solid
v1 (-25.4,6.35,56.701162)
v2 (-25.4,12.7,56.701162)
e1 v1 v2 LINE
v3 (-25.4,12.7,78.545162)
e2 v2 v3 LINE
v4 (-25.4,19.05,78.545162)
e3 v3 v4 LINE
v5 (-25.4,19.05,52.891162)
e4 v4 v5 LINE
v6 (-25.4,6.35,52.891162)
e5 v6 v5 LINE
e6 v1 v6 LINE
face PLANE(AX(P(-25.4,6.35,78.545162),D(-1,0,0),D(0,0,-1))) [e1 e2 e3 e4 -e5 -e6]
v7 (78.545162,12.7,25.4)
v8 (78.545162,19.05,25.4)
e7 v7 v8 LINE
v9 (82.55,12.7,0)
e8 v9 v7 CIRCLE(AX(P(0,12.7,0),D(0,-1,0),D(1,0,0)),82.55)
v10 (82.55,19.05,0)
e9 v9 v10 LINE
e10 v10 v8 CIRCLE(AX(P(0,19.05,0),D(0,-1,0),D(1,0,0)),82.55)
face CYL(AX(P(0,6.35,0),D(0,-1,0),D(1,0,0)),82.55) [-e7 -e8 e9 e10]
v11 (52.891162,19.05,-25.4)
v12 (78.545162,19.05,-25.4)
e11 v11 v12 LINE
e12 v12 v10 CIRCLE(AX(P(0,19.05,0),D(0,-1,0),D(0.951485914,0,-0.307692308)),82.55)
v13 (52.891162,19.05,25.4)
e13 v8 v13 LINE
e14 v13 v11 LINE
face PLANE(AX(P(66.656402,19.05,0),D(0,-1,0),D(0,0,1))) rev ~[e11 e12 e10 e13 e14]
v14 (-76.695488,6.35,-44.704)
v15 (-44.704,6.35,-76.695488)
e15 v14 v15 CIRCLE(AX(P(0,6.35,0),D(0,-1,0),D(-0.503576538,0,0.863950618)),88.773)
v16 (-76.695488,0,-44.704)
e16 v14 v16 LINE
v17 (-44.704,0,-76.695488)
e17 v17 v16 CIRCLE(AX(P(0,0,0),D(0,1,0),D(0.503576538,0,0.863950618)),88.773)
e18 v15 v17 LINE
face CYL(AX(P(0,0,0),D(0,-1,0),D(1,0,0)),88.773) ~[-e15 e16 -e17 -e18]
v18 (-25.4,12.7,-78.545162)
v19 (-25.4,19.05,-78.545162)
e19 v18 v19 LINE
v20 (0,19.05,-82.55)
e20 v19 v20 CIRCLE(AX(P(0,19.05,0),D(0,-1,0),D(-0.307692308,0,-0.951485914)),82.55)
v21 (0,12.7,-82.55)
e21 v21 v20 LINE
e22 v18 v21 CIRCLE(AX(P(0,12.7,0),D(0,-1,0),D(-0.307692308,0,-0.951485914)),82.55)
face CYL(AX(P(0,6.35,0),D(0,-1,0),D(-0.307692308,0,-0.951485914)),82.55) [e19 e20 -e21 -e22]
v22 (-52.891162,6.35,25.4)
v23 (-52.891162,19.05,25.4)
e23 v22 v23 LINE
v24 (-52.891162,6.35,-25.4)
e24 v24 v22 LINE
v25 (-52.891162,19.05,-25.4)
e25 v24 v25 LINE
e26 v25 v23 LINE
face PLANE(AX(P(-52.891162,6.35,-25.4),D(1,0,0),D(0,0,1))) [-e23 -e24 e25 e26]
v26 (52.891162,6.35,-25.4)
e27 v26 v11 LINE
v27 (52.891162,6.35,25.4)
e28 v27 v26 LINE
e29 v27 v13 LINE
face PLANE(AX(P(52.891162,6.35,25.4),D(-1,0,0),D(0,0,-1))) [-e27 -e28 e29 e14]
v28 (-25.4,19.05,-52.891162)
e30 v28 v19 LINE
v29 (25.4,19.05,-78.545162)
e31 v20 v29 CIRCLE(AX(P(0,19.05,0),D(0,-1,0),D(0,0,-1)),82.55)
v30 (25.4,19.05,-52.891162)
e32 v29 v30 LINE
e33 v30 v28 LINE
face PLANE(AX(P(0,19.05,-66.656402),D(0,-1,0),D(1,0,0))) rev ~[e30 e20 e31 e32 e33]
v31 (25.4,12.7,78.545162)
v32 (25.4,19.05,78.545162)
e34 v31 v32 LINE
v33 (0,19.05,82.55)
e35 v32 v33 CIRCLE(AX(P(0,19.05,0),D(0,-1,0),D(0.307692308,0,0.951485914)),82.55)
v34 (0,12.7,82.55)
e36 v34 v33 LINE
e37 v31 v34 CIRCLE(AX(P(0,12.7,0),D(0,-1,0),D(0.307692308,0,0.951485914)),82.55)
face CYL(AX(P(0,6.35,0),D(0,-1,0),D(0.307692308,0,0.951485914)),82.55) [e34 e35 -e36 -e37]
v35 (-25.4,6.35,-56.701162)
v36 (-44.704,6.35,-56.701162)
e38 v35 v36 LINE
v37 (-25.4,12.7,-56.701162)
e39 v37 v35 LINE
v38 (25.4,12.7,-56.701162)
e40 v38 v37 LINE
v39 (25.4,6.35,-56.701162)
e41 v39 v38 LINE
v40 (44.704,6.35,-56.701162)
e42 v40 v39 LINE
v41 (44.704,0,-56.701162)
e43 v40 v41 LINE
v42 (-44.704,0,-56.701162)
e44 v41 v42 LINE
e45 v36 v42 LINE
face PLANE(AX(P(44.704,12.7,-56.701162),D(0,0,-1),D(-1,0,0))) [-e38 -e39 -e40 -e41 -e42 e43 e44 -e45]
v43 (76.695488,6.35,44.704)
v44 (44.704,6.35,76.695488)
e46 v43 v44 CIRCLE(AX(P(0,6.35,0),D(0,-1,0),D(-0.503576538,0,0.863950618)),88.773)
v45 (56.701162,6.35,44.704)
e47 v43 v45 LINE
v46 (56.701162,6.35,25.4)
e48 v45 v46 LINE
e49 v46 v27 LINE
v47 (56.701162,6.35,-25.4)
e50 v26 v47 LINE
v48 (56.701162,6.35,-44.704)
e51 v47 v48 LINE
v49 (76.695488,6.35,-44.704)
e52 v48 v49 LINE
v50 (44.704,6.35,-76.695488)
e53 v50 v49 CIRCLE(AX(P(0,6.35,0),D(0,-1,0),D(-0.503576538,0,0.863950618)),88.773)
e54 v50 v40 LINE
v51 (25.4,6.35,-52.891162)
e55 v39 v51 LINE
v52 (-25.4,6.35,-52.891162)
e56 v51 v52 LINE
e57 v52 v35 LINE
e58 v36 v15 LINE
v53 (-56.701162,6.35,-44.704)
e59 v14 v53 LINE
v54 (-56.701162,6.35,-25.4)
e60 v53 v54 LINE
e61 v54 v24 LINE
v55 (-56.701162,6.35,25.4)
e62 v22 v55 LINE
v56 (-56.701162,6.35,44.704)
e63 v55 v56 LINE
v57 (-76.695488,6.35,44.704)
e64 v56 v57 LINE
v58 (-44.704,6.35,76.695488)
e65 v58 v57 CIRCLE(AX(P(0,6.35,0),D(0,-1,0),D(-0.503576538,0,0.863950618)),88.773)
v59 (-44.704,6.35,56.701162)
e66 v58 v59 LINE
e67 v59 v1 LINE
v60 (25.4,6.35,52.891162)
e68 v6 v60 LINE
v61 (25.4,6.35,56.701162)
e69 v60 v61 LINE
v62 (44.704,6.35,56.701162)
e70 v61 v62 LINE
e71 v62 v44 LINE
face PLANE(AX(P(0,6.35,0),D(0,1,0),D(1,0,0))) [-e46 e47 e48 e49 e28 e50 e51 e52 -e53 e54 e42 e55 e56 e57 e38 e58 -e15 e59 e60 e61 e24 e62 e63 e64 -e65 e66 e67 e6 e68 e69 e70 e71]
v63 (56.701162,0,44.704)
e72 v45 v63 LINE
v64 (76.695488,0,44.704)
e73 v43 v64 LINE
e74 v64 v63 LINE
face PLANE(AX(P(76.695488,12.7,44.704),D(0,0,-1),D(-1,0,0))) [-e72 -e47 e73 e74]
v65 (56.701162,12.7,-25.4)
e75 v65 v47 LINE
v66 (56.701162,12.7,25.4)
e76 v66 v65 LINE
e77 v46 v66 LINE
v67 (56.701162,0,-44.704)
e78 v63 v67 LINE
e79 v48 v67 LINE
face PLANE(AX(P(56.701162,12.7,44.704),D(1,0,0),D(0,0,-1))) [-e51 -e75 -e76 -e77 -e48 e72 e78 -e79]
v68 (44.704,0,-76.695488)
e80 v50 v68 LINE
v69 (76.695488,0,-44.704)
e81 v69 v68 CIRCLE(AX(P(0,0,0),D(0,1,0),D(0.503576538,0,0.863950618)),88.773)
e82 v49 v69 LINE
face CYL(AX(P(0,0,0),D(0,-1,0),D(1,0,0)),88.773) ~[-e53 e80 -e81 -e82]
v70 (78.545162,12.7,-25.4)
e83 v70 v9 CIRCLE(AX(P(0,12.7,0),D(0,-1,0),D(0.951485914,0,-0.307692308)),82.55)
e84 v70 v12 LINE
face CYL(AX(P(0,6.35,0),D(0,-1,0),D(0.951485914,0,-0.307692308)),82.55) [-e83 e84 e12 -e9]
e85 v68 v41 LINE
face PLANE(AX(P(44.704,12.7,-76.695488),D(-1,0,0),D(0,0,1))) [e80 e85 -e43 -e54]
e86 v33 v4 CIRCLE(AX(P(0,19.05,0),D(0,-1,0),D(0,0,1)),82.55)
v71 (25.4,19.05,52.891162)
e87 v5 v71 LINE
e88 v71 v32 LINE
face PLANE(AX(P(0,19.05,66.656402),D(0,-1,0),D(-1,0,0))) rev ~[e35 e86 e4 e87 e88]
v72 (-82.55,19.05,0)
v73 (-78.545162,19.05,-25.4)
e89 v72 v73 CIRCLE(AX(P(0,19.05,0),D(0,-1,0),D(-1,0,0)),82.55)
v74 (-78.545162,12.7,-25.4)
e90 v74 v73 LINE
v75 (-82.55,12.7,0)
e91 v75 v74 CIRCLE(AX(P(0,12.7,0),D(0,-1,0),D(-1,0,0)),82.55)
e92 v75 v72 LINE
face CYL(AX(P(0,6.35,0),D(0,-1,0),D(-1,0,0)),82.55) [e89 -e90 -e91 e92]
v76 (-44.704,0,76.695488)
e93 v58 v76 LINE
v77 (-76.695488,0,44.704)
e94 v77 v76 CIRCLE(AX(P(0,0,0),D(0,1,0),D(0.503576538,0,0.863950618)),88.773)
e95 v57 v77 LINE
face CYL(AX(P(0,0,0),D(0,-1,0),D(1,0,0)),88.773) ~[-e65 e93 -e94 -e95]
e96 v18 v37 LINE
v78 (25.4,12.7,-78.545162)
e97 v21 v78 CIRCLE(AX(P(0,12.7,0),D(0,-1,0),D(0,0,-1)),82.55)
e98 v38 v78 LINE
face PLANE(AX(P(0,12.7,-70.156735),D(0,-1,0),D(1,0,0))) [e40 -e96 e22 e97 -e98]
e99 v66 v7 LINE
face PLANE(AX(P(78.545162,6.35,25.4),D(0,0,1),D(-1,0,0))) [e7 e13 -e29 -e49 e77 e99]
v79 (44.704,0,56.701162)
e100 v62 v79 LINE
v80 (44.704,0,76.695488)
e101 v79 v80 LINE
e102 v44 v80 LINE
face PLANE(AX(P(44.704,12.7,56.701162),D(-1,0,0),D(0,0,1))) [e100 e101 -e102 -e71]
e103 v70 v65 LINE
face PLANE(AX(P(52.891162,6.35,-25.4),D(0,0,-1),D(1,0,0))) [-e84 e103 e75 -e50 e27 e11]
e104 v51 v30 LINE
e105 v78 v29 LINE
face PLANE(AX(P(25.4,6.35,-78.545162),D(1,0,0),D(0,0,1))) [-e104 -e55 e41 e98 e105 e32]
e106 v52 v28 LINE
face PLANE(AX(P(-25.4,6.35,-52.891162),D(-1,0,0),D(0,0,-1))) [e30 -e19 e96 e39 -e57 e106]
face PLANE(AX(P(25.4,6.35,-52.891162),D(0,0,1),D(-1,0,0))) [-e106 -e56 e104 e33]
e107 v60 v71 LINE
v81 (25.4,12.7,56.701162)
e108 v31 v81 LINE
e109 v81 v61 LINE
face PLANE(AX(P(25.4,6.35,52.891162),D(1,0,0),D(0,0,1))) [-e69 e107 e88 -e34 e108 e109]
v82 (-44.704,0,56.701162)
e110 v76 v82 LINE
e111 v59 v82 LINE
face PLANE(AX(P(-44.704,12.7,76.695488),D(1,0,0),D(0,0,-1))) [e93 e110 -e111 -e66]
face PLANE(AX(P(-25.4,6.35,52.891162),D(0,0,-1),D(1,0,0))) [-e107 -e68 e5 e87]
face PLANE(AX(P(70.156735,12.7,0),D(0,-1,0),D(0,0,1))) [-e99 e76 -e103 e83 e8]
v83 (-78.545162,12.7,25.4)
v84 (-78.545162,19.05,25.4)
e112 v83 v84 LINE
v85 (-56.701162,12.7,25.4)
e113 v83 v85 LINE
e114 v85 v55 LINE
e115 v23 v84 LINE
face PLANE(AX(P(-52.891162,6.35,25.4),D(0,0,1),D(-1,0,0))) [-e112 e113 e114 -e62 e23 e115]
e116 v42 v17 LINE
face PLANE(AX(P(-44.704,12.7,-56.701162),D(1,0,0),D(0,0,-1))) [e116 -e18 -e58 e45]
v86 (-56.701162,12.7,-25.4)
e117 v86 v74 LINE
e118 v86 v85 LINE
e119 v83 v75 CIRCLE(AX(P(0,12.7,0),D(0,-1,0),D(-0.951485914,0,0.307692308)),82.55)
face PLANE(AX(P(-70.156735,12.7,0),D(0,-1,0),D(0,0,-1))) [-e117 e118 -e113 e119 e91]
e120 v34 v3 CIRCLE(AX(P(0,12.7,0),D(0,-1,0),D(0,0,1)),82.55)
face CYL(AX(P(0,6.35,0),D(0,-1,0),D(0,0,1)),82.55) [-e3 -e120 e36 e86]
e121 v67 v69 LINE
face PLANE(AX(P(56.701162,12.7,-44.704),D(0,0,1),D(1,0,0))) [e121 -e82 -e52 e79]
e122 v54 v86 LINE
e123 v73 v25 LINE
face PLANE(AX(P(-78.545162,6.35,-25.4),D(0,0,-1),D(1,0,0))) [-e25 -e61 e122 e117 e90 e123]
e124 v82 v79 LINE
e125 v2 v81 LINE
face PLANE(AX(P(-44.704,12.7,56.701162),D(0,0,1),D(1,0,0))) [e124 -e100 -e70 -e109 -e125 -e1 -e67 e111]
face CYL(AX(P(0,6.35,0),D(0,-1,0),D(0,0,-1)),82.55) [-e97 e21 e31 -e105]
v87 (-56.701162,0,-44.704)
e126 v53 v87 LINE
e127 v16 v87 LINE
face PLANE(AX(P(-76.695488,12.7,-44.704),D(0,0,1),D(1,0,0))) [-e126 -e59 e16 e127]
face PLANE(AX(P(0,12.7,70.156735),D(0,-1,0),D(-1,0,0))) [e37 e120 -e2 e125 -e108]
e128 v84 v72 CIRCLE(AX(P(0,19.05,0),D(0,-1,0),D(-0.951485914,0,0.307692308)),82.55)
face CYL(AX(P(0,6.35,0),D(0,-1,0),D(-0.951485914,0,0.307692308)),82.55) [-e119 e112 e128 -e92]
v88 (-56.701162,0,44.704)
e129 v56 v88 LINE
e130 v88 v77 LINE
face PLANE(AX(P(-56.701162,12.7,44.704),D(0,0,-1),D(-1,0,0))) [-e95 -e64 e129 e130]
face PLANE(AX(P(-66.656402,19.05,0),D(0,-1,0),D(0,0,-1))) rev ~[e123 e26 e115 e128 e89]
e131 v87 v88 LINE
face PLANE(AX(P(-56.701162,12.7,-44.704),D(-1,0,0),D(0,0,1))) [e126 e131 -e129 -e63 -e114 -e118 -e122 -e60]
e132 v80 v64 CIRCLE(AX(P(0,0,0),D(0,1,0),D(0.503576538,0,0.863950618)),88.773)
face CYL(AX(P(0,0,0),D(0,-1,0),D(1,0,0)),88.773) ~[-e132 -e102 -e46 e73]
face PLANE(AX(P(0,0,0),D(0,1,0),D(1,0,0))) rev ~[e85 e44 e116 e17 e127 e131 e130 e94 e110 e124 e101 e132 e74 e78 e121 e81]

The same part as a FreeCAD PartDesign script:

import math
import FreeCAD as App
import Part
import Sketcher
from FreeCAD import Vector
Q = App.Units.Quantity

doc = App.newDocument("Part")
body = doc.addObject("PartDesign::Body", "Body")

# Sketch on XZ plane
sketch1 = body.newObject("Sketcher::SketchObject", "Sketch")
sketch1.AttachmentSupport = (doc.getObject("XZ_Plane"), [""])
sketch1.MapMode = "FlatFace"
sketch1.addGeometry(Part.Circle(Vector(0, 0, 0), Vector(0, 0, 1), 89), False)
sketch1.addConstraint([
    Sketcher.Constraint("Coincident", 0, 3, -1, 1),
    Sketcher.Constraint("Diameter", 0, Q("6.99 in")),
])
pad1 = body.newObject("PartDesign::Pad", "Pad")
pad1.Profile = sketch1
pad1.Length = Q("0.25 in")
pad1.Reversed = True

# Sketch on XZ plane
sketch2 = body.newObject("Sketcher::SketchObject", "Sketch001")
sketch2.AttachmentSupport = (doc.getObject("XZ_Plane"), [""])
sketch2.MapMode = "FlatFace"
sketch2.AttachmentOffset = App.Placement(Vector(0, 0, -0.25 * 25.4), App.Rotation())
sketch2.addGeometry([
    Part.LineSegment(Vector(-25, 53, 0), Vector(-25, 79, 0)),  # 0
    Part.ArcOfCircle(Part.Circle(Vector(0, 0, 0), Vector(0, 0, 1), 83), math.radians(90), math.radians(107.92)),  # 1
    Part.ArcOfCircle(Part.Circle(Vector(0, 0, 0), Vector(0, 0, 1), 83), math.radians(72.08), math.radians(90)),  # 2
    Part.LineSegment(Vector(25, 79, 0), Vector(25, 53, 0)),  # 3
    Part.LineSegment(Vector(25, 53, 0), Vector(-25, 53, 0)),  # 4
], False)
sketch2.addConstraint([
    Sketcher.Constraint("Coincident", 0, 2, 1, 2),
    Sketcher.Constraint("Tangent", 1, 1, 2, 2),
    Sketcher.Constraint("Coincident", 2, 1, 3, 1),
    Sketcher.Constraint("Coincident", 3, 2, 4, 1),
    Sketcher.Constraint("Coincident", 4, 2, 0, 1),
    Sketcher.Constraint("Vertical", 0),
    Sketcher.Constraint("Vertical", 3),
    Sketcher.Constraint("Horizontal", 4),
    Sketcher.Constraint("Coincident", 1, 3, -1, 1),
    Sketcher.Constraint("Equal", 1, 2),
    Sketcher.Constraint("PointOnObject", 1, 1, -2),
    Sketcher.Constraint("Horizontal", 0, 2, 2, 1),
    Sketcher.Constraint("DistanceX", 4, 2, 4, 1, Q("2 in")),
    Sketcher.Constraint("Radius", 1, Q("3.25 in")),
    Sketcher.Constraint("DistanceY", 0, 1, 0, 2, Q("1.01 in")),
])
pad2 = body.newObject("PartDesign::Pad", "Pad001")
pad2.Profile = sketch2
pad2.Length = Q("0.5 in")
pad2.Reversed = True

# Sketch on XZ plane
sketch3 = body.newObject("Sketcher::SketchObject", "Sketch002")
sketch3.AttachmentSupport = (doc.getObject("XZ_Plane"), [""])
sketch3.MapMode = "FlatFace"
sketch3.AttachmentOffset = App.Placement(Vector(0, 0, -0.5 * 25.4), App.Rotation())
sketch3.addGeometry([
    Part.LineSegment(Vector(-45, 57, 0), Vector(-45, 77, 0)),  # 0
    Part.ArcOfCircle(Part.Circle(Vector(0, 0, 0), Vector(0, 0, 1), 89), math.radians(90), math.radians(120)),  # 1
    Part.ArcOfCircle(Part.Circle(Vector(0, 0, 0), Vector(0, 0, 1), 89), math.radians(60), math.radians(90)),  # 2
    Part.LineSegment(Vector(45, 77, 0), Vector(45, 57, 0)),  # 3
    Part.LineSegment(Vector(45, 57, 0), Vector(-45, 57, 0)),  # 4
], False)
sketch3.addConstraint([
    Sketcher.Constraint("Coincident", 0, 2, 1, 2),
    Sketcher.Constraint("Tangent", 1, 1, 2, 2),
    Sketcher.Constraint("Coincident", 2, 1, 3, 1),
    Sketcher.Constraint("Coincident", 3, 2, 4, 1),
    Sketcher.Constraint("Coincident", 4, 2, 0, 1),
    Sketcher.Constraint("Vertical", 0),
    Sketcher.Constraint("Vertical", 3),
    Sketcher.Constraint("Horizontal", 4),
    Sketcher.Constraint("Coincident", 1, 3, -1, 1),
    Sketcher.Constraint("Equal", 1, 2),
    Sketcher.Constraint("PointOnObject", 1, 1, -2),
    Sketcher.Constraint("Horizontal", 0, 2, 2, 1),
    Sketcher.Constraint("Radius", 1, Q("3.495 in")),
    Sketcher.Constraint("DistanceX", 4, 2, 4, 1, Q("3.52 in")),
    Sketcher.Constraint("DistanceY", 0, 1, 0, 2, Q("19.994326 mm")),
])
pocket1 = body.newObject("PartDesign::Pocket", "Pocket")
pocket1.Profile = sketch3
pocket1.Type = "ThroughAll"
pocket1.Reversed = True
doc.recompute()

polarpattern = body.newObject("PartDesign::PolarPattern", "PolarPattern")
polarpattern.Originals = [pad2, pocket1]
polarpattern.Axis = (doc.getObject("Y_Axis"), [""])
polarpattern.Angle = 360
polarpattern.Occurrences = 4
body.Tip = polarpattern

doc.recompute()
